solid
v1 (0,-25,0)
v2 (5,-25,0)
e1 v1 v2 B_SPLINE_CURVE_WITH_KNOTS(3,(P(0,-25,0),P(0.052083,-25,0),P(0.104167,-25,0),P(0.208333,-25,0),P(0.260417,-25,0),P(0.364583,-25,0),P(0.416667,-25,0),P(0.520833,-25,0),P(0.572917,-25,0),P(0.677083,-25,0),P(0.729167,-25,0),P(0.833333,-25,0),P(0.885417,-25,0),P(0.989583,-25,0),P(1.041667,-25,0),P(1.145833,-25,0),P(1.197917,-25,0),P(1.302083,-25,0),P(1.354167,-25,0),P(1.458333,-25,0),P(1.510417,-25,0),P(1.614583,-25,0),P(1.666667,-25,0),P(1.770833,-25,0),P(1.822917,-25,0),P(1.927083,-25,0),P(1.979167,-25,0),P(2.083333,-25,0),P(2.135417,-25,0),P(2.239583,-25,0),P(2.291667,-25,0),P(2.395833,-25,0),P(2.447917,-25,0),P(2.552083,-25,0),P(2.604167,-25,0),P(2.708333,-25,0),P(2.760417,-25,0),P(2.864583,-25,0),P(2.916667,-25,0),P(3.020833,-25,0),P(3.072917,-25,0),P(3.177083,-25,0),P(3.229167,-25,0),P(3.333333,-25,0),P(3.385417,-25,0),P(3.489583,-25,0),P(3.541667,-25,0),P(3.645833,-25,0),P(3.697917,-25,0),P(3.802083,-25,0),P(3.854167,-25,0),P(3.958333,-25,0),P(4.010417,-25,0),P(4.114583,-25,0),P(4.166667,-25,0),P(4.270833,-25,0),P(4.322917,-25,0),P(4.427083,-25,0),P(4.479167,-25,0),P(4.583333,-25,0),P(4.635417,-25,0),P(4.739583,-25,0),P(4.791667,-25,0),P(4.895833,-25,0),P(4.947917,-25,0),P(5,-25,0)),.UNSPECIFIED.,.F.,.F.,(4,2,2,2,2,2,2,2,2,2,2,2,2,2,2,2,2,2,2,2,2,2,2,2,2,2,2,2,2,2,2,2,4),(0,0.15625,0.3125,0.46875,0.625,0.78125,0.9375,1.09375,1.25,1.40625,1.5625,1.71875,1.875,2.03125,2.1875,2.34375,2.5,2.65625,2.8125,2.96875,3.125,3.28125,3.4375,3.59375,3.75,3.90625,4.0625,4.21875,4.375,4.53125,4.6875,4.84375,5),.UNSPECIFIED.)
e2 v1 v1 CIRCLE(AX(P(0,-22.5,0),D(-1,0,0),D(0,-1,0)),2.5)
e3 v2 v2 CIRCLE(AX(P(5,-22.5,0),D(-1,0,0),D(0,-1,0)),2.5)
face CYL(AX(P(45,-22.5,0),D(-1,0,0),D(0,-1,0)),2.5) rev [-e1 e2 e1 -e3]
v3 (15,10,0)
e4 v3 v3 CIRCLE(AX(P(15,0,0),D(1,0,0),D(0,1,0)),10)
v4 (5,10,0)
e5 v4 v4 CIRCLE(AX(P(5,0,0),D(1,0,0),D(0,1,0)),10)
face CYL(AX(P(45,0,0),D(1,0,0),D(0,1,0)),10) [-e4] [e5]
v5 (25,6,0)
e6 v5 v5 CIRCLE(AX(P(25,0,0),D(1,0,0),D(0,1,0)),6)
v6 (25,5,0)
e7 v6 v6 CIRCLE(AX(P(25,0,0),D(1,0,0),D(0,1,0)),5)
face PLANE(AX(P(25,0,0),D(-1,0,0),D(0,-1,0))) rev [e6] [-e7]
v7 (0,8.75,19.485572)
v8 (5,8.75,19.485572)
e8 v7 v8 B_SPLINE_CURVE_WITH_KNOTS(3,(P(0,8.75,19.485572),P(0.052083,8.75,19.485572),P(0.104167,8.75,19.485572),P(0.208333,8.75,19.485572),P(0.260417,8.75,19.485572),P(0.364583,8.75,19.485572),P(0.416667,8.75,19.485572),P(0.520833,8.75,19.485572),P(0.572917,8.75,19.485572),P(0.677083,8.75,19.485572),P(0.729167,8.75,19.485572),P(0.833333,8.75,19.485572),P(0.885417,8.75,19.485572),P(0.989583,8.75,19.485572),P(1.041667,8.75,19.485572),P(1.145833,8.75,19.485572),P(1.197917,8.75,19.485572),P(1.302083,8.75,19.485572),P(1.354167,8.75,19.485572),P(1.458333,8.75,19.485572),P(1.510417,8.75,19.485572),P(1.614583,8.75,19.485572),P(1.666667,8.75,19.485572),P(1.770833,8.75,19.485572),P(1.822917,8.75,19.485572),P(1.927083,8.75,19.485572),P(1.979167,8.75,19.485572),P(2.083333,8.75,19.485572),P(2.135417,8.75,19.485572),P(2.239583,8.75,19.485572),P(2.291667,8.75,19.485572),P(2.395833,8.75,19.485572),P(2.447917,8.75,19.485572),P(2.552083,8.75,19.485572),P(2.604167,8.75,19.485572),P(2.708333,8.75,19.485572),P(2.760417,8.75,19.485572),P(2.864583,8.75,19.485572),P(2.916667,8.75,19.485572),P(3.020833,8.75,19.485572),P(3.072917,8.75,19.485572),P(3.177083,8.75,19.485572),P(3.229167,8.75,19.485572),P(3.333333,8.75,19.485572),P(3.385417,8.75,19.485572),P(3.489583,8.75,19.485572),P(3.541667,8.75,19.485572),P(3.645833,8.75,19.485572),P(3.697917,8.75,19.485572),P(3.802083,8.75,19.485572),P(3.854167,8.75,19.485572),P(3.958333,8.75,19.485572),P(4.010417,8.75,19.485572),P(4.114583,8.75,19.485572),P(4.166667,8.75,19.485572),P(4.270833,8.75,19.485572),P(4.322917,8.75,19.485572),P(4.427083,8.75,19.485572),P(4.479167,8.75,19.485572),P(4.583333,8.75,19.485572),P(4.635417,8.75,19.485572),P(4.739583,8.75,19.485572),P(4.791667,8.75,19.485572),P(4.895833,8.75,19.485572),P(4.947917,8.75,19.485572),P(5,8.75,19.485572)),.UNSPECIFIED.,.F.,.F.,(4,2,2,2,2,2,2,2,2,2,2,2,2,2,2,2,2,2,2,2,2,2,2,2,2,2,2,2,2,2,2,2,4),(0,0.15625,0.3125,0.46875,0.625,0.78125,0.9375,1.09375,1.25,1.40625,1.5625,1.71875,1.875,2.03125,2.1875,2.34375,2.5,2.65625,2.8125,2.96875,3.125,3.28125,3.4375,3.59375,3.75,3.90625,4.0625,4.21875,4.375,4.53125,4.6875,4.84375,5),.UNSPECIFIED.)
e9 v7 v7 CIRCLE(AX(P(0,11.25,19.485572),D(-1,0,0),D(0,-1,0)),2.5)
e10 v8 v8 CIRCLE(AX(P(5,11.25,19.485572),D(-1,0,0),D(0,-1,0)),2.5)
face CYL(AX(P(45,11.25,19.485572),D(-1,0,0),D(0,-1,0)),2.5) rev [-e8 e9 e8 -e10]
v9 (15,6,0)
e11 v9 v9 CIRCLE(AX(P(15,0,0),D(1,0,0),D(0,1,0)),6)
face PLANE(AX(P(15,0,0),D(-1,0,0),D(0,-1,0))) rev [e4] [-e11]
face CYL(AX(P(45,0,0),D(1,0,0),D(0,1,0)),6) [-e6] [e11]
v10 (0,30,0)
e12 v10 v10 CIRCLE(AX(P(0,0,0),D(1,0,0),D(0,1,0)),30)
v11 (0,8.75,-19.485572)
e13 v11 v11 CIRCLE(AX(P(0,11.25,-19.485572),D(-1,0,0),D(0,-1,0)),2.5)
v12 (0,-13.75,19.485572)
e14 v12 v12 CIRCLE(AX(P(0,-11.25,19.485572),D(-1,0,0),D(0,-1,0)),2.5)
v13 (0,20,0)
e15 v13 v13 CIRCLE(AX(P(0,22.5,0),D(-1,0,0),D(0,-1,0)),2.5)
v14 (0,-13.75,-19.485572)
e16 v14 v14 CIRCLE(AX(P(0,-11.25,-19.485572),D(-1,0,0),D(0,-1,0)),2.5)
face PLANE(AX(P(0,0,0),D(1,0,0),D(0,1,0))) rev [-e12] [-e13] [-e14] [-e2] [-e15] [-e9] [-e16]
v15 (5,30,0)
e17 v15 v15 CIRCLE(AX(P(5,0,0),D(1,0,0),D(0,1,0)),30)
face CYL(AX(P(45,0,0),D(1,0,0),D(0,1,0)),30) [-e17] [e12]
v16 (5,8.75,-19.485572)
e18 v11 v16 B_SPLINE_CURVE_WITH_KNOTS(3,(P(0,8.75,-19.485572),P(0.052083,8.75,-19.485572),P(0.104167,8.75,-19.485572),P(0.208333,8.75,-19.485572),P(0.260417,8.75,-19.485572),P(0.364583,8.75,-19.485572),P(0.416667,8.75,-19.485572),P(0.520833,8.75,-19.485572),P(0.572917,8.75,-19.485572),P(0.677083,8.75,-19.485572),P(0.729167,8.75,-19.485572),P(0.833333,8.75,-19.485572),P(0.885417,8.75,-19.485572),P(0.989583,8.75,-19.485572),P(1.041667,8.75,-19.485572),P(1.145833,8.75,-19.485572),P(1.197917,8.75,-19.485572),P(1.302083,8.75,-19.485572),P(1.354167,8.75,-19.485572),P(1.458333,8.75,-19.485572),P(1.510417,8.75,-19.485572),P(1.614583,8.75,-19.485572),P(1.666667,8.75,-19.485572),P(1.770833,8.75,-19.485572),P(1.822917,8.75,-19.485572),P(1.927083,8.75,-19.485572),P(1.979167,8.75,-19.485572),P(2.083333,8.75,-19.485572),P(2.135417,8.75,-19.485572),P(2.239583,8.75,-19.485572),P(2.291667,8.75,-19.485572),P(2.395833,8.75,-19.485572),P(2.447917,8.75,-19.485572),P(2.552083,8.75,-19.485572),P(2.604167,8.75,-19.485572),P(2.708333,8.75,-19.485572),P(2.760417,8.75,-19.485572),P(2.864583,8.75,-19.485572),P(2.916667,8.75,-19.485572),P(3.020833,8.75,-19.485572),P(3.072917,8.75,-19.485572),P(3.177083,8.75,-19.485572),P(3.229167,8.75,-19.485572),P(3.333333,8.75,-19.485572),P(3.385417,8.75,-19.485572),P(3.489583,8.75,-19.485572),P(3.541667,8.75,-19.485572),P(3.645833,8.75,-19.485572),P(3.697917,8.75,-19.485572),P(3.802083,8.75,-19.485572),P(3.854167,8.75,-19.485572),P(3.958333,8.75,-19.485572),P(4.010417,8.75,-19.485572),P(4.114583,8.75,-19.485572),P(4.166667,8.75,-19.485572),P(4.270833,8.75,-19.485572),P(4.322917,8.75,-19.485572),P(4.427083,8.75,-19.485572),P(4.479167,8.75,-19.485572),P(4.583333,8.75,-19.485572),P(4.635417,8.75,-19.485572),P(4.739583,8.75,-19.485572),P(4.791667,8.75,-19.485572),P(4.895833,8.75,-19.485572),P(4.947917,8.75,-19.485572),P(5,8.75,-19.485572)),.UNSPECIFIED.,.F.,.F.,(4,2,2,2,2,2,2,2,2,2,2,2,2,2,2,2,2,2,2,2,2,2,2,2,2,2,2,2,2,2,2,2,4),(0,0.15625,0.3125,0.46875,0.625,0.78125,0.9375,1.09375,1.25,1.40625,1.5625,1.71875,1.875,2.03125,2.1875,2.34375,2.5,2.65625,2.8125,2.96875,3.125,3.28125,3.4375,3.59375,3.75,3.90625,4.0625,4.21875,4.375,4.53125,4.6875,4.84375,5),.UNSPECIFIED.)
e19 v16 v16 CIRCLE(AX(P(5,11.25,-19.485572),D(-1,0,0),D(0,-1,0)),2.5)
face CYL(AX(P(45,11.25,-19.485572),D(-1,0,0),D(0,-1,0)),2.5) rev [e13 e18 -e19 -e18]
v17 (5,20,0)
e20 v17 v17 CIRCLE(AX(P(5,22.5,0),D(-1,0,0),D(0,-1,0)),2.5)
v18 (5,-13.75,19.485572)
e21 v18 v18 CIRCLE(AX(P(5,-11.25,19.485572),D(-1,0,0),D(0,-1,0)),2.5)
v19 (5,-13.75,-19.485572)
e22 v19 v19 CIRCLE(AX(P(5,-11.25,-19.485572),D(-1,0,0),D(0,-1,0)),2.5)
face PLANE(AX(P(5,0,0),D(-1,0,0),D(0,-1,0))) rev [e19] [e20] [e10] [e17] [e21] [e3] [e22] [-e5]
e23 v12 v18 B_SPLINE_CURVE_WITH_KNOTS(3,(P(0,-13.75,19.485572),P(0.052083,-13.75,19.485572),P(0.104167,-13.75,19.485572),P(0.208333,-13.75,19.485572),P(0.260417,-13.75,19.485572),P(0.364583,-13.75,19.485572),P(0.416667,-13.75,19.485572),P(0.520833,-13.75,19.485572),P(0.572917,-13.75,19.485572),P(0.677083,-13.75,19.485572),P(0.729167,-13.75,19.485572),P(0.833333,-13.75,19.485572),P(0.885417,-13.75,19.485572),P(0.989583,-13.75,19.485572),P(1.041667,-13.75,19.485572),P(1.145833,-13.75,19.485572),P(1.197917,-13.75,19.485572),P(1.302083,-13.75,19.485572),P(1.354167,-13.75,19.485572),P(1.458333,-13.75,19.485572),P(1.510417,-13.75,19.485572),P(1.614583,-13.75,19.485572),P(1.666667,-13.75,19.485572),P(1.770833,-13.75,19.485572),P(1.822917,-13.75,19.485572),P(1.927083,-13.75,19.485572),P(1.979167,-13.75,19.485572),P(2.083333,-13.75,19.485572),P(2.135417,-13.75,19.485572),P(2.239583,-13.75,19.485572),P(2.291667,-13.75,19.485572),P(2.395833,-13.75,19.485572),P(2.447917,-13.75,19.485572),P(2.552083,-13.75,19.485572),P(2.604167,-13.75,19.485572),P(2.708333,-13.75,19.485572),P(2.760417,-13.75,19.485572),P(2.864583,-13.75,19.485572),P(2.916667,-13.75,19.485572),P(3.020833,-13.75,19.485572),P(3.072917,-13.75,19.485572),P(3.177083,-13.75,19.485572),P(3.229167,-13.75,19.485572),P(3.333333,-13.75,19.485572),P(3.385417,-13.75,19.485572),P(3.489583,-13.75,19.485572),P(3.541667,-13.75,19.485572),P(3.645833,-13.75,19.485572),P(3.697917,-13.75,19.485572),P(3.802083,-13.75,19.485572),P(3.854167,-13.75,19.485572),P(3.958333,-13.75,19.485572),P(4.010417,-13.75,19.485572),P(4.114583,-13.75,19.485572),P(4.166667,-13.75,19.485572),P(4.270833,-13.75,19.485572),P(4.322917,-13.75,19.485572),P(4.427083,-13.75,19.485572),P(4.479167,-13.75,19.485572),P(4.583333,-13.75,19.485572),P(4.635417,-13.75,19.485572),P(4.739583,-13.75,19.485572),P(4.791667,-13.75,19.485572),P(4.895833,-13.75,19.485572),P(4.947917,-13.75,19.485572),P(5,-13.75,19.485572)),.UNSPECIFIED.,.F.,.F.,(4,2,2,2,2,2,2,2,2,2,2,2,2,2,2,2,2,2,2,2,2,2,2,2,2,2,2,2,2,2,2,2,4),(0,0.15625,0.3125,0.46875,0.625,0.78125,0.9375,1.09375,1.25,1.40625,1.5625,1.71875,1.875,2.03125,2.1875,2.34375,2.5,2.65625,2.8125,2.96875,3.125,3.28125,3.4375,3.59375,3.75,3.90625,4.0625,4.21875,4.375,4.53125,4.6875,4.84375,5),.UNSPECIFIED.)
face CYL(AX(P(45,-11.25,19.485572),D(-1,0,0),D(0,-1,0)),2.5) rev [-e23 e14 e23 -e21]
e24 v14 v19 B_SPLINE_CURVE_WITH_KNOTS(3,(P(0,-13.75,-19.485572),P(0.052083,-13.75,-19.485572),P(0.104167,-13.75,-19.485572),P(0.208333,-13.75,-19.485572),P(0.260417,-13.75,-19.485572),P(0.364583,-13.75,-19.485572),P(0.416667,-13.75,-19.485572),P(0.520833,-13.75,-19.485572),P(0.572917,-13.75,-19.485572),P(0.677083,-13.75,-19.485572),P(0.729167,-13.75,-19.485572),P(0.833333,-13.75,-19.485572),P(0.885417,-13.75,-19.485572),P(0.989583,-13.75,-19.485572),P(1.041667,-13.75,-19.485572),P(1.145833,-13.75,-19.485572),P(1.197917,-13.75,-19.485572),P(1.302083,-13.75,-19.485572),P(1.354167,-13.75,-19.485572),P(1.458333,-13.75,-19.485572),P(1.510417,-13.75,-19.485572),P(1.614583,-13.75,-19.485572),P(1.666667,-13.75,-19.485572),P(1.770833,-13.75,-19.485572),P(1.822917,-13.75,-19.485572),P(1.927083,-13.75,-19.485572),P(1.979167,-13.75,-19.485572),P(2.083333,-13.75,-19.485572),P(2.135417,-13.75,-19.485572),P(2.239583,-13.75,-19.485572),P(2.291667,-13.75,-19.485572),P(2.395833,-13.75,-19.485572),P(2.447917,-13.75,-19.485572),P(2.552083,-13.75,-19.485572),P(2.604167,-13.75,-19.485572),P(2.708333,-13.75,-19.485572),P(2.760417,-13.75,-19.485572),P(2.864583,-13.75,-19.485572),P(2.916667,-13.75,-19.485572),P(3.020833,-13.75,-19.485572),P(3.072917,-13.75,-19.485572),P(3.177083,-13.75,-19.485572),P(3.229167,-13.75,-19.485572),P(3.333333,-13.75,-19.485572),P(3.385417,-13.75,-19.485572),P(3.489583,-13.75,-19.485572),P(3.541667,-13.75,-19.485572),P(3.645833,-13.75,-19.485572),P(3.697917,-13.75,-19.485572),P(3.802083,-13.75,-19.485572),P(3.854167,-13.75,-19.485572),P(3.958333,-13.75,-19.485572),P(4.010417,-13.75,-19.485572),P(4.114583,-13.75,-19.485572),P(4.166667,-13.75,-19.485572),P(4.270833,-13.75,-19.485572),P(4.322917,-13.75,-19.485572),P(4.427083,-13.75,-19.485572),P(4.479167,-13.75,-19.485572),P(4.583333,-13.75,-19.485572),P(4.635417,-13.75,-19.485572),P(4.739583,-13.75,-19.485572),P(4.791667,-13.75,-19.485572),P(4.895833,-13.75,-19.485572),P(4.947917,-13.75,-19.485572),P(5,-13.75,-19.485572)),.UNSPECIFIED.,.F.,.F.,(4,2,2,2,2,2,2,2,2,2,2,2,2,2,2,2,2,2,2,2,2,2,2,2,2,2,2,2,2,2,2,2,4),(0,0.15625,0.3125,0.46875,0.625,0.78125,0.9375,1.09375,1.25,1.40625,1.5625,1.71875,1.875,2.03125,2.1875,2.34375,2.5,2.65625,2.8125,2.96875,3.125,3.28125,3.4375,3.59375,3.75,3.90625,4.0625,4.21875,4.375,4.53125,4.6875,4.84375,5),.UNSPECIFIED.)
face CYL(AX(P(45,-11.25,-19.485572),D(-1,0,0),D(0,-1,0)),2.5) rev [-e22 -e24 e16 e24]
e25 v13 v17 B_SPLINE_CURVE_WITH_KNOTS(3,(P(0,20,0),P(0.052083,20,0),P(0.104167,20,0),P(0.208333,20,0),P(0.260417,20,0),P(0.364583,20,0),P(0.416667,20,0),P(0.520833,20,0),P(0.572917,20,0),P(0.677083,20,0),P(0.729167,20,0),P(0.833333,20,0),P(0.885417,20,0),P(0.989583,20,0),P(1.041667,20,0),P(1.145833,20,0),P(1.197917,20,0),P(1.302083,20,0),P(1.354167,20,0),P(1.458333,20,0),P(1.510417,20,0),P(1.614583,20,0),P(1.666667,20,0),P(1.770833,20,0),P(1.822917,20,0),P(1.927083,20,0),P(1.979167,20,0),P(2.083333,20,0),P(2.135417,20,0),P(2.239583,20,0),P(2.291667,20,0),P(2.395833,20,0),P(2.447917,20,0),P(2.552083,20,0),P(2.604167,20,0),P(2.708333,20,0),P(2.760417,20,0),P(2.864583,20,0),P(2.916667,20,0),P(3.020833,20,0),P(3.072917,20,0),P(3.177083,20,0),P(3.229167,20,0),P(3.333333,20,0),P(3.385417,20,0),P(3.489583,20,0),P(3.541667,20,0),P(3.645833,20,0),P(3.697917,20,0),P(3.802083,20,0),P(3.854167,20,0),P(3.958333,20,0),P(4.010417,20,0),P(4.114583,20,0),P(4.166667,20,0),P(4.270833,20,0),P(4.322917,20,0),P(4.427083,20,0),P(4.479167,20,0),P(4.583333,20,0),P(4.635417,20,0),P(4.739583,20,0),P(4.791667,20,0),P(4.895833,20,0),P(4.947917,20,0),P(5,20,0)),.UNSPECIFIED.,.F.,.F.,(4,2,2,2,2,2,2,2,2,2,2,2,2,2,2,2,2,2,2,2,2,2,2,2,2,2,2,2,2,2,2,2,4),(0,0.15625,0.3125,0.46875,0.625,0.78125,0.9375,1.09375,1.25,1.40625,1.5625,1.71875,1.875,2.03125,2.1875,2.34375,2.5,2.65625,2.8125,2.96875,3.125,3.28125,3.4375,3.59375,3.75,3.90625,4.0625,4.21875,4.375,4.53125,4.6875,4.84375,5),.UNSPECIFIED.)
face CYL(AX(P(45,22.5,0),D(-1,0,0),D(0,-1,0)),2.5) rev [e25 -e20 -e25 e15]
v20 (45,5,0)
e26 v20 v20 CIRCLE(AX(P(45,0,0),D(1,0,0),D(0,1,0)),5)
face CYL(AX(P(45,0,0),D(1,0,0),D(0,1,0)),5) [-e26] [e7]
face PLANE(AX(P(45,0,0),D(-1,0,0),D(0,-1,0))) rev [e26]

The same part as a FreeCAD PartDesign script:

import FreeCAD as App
import Part
import Sketcher

V = App.Vector
Q = App.Units.Quantity

doc = App.newDocument("Part")
body = doc.addObject("PartDesign::Body", "Body")

sketch1 = body.newObject("Sketcher::SketchObject", "Sketch")
sketch1.AttachmentSupport = (doc.getObject("XY_Plane"), [""])
sketch1.MapMode = "FlatFace"
sketch1.addGeometry([
    Part.LineSegment(V(0, 30, 0), V(0, 0, 0)),
    Part.LineSegment(V(0, 0, 0), V(45, 0, 0)),
    Part.LineSegment(V(45, 0, 0), V(45, 5, 0)),
    Part.LineSegment(V(45, 5, 0), V(25, 5, 0)),
    Part.LineSegment(V(25, 5, 0), V(25, 6, 0)),
    Part.LineSegment(V(25, 6, 0), V(15, 6, 0)),
    Part.LineSegment(V(15, 6, 0), V(15, 10, 0)),
    Part.LineSegment(V(15, 10, 0), V(5, 10, 0)),
    Part.LineSegment(V(5, 10, 0), V(5, 30, 0)),
    Part.LineSegment(V(5, 30, 0), V(0, 30, 0)),
], False)
sketch1.addConstraint([
    Sketcher.Constraint("Coincident", 0, 2, 1, 1),
    Sketcher.Constraint("Coincident", 1, 2, 2, 1),
    Sketcher.Constraint("Coincident", 2, 2, 3, 1),
    Sketcher.Constraint("Coincident", 3, 2, 4, 1),
    Sketcher.Constraint("Coincident", 4, 2, 5, 1),
    Sketcher.Constraint("Coincident", 5, 2, 6, 1),
    Sketcher.Constraint("Coincident", 6, 2, 7, 1),
    Sketcher.Constraint("Coincident", 7, 2, 8, 1),
    Sketcher.Constraint("Coincident", 8, 2, 9, 1),
    Sketcher.Constraint("Coincident", 9, 2, 0, 1),
    Sketcher.Constraint("Vertical", 0),
    Sketcher.Constraint("Horizontal", 1),
    Sketcher.Constraint("Vertical", 2),
    Sketcher.Constraint("Horizontal", 3),
    Sketcher.Constraint("Vertical", 4),
    Sketcher.Constraint("Horizontal", 5),
    Sketcher.Constraint("Vertical", 6),
    Sketcher.Constraint("Horizontal", 7),
    Sketcher.Constraint("Vertical", 8),
    Sketcher.Constraint("Horizontal", 9),
    Sketcher.Constraint("Coincident", 0, 2, -1, 1),
    Sketcher.Constraint("Equal", 5, 7),
    Sketcher.Constraint("Equal", 9, 2),
    Sketcher.Constraint("Equal", 3, 8),
    Sketcher.Constraint("DistanceX", 1, 1, 1, 2, Q("45 mm")),
    Sketcher.Constraint("DistanceX", 3, 2, 3, 1, Q("20 mm")),
    Sketcher.Constraint("DistanceX", 5, 2, 5, 1, Q("10 mm")),
    Sketcher.Constraint("DistanceY", 0, 2, 0, 1, Q("30 mm")),
    Sketcher.Constraint("DistanceY", 4, 1, 4, 2, Q("1 mm")),
])
revolution = body.newObject("PartDesign::Revolution", "Revolution")
revolution.Profile = sketch1
revolution.ReferenceAxis = (sketch1, ["H_Axis"])
revolution.Angle = 360

sketch2 = body.newObject("Sketcher::SketchObject", "Sketch001")
sketch2.AttachmentSupport = (doc.getObject("YZ_Plane"), [""])
sketch2.MapMode = "FlatFace"
sketch2.addGeometry([
    Part.Circle(V(22.5, 0, 0), V(0, 0, 1), 2.5),
    Part.Circle(V(11.2, 19.5, 0), V(0, 0, 1), 2.5),
    Part.Circle(V(-11.2, 19.5, 0), V(0, 0, 1), 2.5),
    Part.Circle(V(-22.5, 0, 0), V(0, 0, 1), 2.5),
    Part.Circle(V(-11.2, -19.5, 0), V(0, 0, 1), 2.5),
    Part.Circle(V(11.2, -19.5, 0), V(0, 0, 1), 2.5),
], False)
sketch2.addConstraint([
    Sketcher.Constraint("Equal", 0, 1),
    Sketcher.Constraint("Equal", 1, 2),
    Sketcher.Constraint("Equal", 2, 3),
    Sketcher.Constraint("Equal", 3, 4),
    Sketcher.Constraint("Equal", 4, 5),
    Sketcher.Constraint("Symmetric", 0, 3, 3, 3, -1, 1),
    Sketcher.Constraint("Symmetric", 1, 3, 4, 3, -1, 1),
    Sketcher.Constraint("Symmetric", 2, 3, 5, 3, -1, 1),
    Sketcher.Constraint("Symmetric", 1, 3, 2, 3, -2),
    Sketcher.Constraint("PointOnObject", 0, 3, -1),
    Sketcher.Constraint("Diameter", 0, Q("5 mm")),
    Sketcher.Constraint("DistanceX", 3, 3, 0, 3, Q("45 mm")),
    Sketcher.Constraint("DistanceX", 2, 3, 1, 3, Q("22.5 mm")),
    Sketcher.Constraint("DistanceY", -1, 1, 1, 3, Q("19.485572 mm")),
])
pocket1 = body.newObject("PartDesign::Pocket", "Pocket")
pocket1.Profile = sketch2
pocket1.Type = "ThroughAll"
pocket1.Reversed = True

doc.recompute()
